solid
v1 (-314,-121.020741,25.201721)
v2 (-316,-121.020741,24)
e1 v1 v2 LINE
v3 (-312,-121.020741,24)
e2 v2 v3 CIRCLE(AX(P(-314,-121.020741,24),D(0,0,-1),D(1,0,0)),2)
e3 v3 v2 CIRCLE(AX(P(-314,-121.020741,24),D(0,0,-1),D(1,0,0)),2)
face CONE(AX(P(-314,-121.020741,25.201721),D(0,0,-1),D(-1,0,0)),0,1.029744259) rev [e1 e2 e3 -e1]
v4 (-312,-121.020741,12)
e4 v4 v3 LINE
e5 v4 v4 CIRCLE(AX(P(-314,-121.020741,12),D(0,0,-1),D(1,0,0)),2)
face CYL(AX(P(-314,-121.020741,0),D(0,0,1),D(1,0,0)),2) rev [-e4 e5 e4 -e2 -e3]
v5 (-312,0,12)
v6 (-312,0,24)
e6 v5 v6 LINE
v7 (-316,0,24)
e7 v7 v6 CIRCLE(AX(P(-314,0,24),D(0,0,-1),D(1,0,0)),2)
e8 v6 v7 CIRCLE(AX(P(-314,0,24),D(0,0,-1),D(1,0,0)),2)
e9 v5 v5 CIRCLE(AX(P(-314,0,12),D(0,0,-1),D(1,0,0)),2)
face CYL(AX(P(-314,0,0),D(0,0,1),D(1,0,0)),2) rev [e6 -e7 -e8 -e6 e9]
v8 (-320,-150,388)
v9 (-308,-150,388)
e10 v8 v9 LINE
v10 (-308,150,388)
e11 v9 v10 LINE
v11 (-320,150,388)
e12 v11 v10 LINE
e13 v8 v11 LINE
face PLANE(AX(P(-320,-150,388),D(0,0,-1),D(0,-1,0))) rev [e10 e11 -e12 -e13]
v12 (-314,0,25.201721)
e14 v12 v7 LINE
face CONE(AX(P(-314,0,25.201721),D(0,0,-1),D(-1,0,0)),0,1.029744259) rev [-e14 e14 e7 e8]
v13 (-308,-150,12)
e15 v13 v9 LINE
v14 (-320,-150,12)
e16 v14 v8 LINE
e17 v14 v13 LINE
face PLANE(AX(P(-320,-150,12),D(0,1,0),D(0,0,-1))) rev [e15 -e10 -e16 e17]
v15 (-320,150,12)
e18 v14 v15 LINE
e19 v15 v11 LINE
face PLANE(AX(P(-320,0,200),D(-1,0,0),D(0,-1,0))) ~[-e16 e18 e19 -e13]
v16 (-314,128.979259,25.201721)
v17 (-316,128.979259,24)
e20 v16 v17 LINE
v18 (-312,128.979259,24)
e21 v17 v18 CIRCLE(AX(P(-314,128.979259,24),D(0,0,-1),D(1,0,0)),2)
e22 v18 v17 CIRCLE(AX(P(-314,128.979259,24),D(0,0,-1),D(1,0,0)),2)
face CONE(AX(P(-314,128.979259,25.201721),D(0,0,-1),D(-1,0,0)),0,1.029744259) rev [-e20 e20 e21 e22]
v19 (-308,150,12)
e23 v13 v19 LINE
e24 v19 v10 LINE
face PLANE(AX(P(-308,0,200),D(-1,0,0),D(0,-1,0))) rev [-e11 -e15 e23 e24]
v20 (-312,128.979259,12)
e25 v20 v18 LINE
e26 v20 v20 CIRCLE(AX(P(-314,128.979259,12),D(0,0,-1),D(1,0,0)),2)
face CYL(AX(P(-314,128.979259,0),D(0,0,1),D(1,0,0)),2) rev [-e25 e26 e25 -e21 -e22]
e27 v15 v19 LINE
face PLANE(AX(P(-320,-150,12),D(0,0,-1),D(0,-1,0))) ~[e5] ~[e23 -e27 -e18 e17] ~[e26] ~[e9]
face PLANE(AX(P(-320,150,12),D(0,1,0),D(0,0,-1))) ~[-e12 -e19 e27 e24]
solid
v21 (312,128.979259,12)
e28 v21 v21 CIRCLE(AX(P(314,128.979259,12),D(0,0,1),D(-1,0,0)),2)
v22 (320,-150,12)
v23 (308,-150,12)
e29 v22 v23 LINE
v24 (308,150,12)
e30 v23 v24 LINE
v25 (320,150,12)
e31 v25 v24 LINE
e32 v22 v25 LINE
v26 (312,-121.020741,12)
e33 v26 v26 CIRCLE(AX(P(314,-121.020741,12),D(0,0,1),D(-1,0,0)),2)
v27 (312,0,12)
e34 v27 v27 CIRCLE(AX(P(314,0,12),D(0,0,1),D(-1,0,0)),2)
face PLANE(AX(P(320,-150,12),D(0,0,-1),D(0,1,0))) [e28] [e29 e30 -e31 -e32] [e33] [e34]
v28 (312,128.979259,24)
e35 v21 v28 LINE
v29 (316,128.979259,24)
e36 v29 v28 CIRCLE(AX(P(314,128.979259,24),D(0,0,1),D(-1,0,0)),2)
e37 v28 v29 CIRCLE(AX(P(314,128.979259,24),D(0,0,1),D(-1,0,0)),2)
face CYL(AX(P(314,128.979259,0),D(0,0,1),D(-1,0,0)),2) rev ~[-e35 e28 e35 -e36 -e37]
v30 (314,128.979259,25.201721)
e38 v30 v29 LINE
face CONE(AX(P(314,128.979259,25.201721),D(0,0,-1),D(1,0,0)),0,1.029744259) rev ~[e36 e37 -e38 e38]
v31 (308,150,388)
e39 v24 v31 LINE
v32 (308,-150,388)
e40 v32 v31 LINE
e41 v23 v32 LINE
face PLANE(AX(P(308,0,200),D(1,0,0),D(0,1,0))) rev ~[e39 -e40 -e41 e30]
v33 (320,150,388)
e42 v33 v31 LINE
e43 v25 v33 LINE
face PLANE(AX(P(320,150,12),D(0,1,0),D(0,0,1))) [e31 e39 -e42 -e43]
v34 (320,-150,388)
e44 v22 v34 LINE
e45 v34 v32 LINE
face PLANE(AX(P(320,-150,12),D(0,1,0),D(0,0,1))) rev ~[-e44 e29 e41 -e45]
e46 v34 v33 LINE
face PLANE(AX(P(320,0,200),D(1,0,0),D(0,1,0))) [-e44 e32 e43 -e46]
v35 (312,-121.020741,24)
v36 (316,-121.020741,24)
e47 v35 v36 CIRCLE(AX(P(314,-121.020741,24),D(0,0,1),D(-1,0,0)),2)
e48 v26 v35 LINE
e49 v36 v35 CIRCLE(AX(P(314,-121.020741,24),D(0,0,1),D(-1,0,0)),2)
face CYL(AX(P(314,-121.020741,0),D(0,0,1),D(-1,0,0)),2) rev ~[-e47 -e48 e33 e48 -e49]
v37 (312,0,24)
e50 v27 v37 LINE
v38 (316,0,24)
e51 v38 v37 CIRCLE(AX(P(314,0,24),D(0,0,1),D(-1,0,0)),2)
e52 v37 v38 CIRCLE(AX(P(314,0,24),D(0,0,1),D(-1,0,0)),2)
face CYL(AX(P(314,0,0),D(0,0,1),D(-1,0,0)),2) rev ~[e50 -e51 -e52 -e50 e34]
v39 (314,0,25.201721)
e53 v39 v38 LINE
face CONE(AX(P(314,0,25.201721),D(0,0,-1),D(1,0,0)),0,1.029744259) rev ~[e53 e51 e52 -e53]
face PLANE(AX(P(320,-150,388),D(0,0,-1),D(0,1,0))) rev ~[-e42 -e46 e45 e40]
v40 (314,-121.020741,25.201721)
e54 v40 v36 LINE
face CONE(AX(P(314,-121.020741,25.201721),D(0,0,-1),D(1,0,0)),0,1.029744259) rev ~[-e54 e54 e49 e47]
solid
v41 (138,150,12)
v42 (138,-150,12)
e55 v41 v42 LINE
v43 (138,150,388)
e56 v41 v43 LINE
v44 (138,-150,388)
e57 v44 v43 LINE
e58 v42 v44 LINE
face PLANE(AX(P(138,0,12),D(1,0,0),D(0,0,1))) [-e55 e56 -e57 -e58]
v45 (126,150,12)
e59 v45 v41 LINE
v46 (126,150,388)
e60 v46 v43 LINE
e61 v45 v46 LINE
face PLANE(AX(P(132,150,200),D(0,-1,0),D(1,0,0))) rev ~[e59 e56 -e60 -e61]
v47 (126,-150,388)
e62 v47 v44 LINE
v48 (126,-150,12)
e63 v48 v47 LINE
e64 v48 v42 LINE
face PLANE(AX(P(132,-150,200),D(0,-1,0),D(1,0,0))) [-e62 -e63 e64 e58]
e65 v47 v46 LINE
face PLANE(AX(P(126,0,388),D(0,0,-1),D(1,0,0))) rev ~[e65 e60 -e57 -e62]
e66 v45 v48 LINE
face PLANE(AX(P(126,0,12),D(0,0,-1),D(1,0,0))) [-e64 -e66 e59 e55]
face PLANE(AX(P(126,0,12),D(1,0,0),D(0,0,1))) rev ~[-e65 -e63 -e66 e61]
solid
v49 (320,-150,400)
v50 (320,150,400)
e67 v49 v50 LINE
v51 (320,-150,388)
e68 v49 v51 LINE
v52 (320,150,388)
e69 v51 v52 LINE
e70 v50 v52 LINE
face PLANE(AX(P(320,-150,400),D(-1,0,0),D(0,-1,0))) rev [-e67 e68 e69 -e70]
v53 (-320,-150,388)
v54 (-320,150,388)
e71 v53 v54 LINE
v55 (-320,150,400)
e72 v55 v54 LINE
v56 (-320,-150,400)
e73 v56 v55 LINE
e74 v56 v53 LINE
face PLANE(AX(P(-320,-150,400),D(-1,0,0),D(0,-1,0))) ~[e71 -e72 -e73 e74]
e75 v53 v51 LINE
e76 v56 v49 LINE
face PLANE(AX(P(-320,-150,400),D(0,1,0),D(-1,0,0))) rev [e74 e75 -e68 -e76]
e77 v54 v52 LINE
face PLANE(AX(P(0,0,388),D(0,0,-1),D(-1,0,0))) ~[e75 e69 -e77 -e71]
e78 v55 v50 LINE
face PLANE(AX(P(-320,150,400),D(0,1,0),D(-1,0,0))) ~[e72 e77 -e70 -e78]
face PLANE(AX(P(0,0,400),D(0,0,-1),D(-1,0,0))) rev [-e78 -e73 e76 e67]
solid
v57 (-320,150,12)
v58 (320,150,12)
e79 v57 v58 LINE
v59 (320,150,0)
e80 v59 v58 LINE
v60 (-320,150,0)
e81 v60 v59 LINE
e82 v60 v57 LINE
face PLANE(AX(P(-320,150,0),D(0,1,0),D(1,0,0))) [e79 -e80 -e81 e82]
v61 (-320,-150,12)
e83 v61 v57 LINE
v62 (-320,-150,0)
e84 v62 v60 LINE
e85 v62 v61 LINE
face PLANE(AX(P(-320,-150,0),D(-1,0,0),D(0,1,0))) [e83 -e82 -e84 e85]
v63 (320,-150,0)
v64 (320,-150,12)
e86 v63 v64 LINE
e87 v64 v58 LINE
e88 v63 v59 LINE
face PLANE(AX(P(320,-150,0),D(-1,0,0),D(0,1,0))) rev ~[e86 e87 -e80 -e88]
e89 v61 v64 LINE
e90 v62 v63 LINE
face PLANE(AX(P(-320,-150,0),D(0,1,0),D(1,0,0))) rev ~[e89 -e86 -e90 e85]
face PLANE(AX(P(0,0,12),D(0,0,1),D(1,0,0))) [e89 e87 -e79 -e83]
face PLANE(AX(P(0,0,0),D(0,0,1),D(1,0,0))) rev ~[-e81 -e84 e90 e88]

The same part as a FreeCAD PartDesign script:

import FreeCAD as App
import Part
import Sketcher
Q = App.Units.Quantity


def add_polygon(sketch, points):
    """Adds a closed chain of lines whose ends are joined by coincident constraints."""
    first, n = sketch.GeometryCount, len(points)
    for a, b in zip(points, points[1:] + points[:1]):
        sketch.addGeometry(Part.LineSegment(App.Vector(*a, 0), App.Vector(*b, 0)), False)
    for i in range(n):
        sketch.addConstraint(Sketcher.Constraint("Coincident", first + i, 2, first + (i + 1) % n, 1))

doc = App.newDocument("Part")
body = doc.addObject("PartDesign::Body", "Body")

# Sketch on XY plane
sketch1 = doc.addObject("Sketcher::SketchObject", "Sketch")
body.addObject(sketch1)
sketch1.AttachmentSupport = (doc.XY_Plane, [""])
sketch1.MapMode = "FlatFace"
add_polygon(sketch1, [(-320, 150), (-320, -150), (320, -150), (320, 150)])  # lines 0-3
sketch1.addConstraint([
    Sketcher.Constraint("Vertical", 0),
    Sketcher.Constraint("Horizontal", 1),
    Sketcher.Constraint("Vertical", 2),
    Sketcher.Constraint("Horizontal", 3),
    Sketcher.Constraint("Symmetric", 0, 2, 2, 2, -1, 1),
    Sketcher.Constraint("DistanceX", 1, 1, 1, 2, Q("640 mm")),
    Sketcher.Constraint("DistanceY", 0, 2, 0, 1, Q("300 mm")),
])
pad1 = doc.addObject("PartDesign::Pad", "Pad")
body.addObject(pad1)
pad1.Profile = sketch1
pad1.Length = 12
body2 = doc.addObject("PartDesign::Body", "Body001")

# Sketch on YZ plane
sketch2 = doc.addObject("Sketcher::SketchObject", "Sketch001")
body2.addObject(sketch2)
sketch2.AttachmentSupport = (doc.getObject("YZ_Plane001"), [""])
sketch2.MapMode = "FlatFace"
sketch2.AttachmentOffset = App.Placement(App.Vector(0, 0, 320), App.Rotation())
add_polygon(sketch2, [(-150, 388), (-150, 12), (150, 12), (150, 388)])  # lines 0-3
sketch2.addConstraint([
    Sketcher.Constraint("Vertical", 0),
    Sketcher.Constraint("Horizontal", 1),
    Sketcher.Constraint("Vertical", 2),
    Sketcher.Constraint("Horizontal", 3),
    Sketcher.Constraint("DistanceX", 1, 1, 1, 2, Q("300 mm")),
    Sketcher.Constraint("DistanceY", 0, 2, 0, 1, Q("376 mm")),
    Sketcher.Constraint("DistanceX", 0, 2, -1, 1, Q("150 mm")),
    Sketcher.Constraint("DistanceY", -1, 1, 0, 2, Q("12 mm")),
])
pad2 = doc.addObject("PartDesign::Pad", "Pad001")
body2.addObject(pad2)
pad2.Profile = sketch2
pad2.Length = 12
pad2.Reversed = True

# Sketch on XY plane
sketch3 = doc.addObject("Sketcher::SketchObject", "Sketch002")
body2.addObject(sketch3)
sketch3.AttachmentSupport = (doc.getObject("XY_Plane001"), [""])
sketch3.MapMode = "FlatFace"
sketch3.AttachmentOffset = App.Placement(App.Vector(0, 0, 12), App.Rotation())
sketch3.addGeometry([
    Part.Circle(App.Vector(314, -121.020741, 0), App.Vector(0, 0, 1), 2),
    Part.Circle(App.Vector(314, 0, 0), App.Vector(0, 0, 1), 2),
    Part.Circle(App.Vector(314, 128.979259, 0), App.Vector(0, 0, 1), 2),
], False)
sketch3.addConstraint([
    Sketcher.Constraint("Equal", 0, 1),
    Sketcher.Constraint("Equal", 1, 2),
    Sketcher.Constraint("PointOnObject", 1, 3, -1),
    Sketcher.Constraint("Vertical", 0, 3, 1, 3),
    Sketcher.Constraint("Vertical", 1, 3, 2, 3),
    Sketcher.Constraint("Diameter", 0, Q("4 mm")),
    Sketcher.Constraint("DistanceX", -1, 1, 0, 3, Q("314 mm")),
    Sketcher.Constraint("DistanceY", 0, 3, 2, 3, Q("250 mm")),
    Sketcher.Constraint("DistanceY", 0, 3, -1, 1, Q("121.020741 mm")),
])
doc.recompute()
hole = doc.addObject("PartDesign::Hole", "Hole")
body2.addObject(hole)
hole.Profile = sketch3
hole.ThreadType = "None"
hole.Diameter = 4
hole.DepthType = "Dimension"
hole.Depth = 12
hole.DrillPoint = "Angled"
hole.DrillPointAngle = 118
hole.Reversed = True
body3 = doc.addObject("PartDesign::Body", "Body002")
doc.recompute()

mirroring = doc.addObject("Part::Mirroring", "Mirroring")
mirroring.Source = body2
mirroring.Base = App.Vector(0, 0, 0)
mirroring.Normal = App.Vector(1, 0, 0)
body3.BaseFeature = mirroring
doc.recompute()
body4 = doc.addObject("PartDesign::Body", "Body003")
doc.recompute()

mirroring2 = doc.addObject("Part::Mirroring", "Mirroring001")
mirroring2.Source = body
mirroring2.Base = App.Vector(314, -0.014037, 200)
mirroring2.Normal = App.Vector(0, 0, -1)
body4.BaseFeature = mirroring2
doc.recompute()
body5 = doc.addObject("PartDesign::Body", "Body004")

# Sketch on XZ plane
sketch4 = doc.addObject("Sketcher::SketchObject", "Sketch003")
body5.addObject(sketch4)
sketch4.AttachmentSupport = (doc.getObject("XZ_Plane004"), [""])
sketch4.MapMode = "FlatFace"
add_polygon(sketch4, [(126, 388), (126, 12), (138, 12), (138, 388)])  # lines 0-3
sketch4.addConstraint([
    Sketcher.Constraint("Vertical", 0),
    Sketcher.Constraint("Horizontal", 1),
    Sketcher.Constraint("Vertical", 2),
    Sketcher.Constraint("Horizontal", 3),
    Sketcher.Constraint("DistanceX", 1, 1, 1, 2, Q("12 mm")),
    Sketcher.Constraint("DistanceY", 0, 2, 0, 1, Q("376 mm")),
    Sketcher.Constraint("DistanceX", -1, 1, 0, 2, Q("126 mm")),
    Sketcher.Constraint("DistanceY", -1, 1, 0, 2, Q("12 mm")),
])
pad3 = doc.addObject("PartDesign::Pad", "Pad002")
body5.addObject(pad3)
pad3.Profile = sketch4
pad3.Length = 300
pad3.Midplane = True
mirroring.Visibility = False
mirroring2.Visibility = False

doc.recompute()
